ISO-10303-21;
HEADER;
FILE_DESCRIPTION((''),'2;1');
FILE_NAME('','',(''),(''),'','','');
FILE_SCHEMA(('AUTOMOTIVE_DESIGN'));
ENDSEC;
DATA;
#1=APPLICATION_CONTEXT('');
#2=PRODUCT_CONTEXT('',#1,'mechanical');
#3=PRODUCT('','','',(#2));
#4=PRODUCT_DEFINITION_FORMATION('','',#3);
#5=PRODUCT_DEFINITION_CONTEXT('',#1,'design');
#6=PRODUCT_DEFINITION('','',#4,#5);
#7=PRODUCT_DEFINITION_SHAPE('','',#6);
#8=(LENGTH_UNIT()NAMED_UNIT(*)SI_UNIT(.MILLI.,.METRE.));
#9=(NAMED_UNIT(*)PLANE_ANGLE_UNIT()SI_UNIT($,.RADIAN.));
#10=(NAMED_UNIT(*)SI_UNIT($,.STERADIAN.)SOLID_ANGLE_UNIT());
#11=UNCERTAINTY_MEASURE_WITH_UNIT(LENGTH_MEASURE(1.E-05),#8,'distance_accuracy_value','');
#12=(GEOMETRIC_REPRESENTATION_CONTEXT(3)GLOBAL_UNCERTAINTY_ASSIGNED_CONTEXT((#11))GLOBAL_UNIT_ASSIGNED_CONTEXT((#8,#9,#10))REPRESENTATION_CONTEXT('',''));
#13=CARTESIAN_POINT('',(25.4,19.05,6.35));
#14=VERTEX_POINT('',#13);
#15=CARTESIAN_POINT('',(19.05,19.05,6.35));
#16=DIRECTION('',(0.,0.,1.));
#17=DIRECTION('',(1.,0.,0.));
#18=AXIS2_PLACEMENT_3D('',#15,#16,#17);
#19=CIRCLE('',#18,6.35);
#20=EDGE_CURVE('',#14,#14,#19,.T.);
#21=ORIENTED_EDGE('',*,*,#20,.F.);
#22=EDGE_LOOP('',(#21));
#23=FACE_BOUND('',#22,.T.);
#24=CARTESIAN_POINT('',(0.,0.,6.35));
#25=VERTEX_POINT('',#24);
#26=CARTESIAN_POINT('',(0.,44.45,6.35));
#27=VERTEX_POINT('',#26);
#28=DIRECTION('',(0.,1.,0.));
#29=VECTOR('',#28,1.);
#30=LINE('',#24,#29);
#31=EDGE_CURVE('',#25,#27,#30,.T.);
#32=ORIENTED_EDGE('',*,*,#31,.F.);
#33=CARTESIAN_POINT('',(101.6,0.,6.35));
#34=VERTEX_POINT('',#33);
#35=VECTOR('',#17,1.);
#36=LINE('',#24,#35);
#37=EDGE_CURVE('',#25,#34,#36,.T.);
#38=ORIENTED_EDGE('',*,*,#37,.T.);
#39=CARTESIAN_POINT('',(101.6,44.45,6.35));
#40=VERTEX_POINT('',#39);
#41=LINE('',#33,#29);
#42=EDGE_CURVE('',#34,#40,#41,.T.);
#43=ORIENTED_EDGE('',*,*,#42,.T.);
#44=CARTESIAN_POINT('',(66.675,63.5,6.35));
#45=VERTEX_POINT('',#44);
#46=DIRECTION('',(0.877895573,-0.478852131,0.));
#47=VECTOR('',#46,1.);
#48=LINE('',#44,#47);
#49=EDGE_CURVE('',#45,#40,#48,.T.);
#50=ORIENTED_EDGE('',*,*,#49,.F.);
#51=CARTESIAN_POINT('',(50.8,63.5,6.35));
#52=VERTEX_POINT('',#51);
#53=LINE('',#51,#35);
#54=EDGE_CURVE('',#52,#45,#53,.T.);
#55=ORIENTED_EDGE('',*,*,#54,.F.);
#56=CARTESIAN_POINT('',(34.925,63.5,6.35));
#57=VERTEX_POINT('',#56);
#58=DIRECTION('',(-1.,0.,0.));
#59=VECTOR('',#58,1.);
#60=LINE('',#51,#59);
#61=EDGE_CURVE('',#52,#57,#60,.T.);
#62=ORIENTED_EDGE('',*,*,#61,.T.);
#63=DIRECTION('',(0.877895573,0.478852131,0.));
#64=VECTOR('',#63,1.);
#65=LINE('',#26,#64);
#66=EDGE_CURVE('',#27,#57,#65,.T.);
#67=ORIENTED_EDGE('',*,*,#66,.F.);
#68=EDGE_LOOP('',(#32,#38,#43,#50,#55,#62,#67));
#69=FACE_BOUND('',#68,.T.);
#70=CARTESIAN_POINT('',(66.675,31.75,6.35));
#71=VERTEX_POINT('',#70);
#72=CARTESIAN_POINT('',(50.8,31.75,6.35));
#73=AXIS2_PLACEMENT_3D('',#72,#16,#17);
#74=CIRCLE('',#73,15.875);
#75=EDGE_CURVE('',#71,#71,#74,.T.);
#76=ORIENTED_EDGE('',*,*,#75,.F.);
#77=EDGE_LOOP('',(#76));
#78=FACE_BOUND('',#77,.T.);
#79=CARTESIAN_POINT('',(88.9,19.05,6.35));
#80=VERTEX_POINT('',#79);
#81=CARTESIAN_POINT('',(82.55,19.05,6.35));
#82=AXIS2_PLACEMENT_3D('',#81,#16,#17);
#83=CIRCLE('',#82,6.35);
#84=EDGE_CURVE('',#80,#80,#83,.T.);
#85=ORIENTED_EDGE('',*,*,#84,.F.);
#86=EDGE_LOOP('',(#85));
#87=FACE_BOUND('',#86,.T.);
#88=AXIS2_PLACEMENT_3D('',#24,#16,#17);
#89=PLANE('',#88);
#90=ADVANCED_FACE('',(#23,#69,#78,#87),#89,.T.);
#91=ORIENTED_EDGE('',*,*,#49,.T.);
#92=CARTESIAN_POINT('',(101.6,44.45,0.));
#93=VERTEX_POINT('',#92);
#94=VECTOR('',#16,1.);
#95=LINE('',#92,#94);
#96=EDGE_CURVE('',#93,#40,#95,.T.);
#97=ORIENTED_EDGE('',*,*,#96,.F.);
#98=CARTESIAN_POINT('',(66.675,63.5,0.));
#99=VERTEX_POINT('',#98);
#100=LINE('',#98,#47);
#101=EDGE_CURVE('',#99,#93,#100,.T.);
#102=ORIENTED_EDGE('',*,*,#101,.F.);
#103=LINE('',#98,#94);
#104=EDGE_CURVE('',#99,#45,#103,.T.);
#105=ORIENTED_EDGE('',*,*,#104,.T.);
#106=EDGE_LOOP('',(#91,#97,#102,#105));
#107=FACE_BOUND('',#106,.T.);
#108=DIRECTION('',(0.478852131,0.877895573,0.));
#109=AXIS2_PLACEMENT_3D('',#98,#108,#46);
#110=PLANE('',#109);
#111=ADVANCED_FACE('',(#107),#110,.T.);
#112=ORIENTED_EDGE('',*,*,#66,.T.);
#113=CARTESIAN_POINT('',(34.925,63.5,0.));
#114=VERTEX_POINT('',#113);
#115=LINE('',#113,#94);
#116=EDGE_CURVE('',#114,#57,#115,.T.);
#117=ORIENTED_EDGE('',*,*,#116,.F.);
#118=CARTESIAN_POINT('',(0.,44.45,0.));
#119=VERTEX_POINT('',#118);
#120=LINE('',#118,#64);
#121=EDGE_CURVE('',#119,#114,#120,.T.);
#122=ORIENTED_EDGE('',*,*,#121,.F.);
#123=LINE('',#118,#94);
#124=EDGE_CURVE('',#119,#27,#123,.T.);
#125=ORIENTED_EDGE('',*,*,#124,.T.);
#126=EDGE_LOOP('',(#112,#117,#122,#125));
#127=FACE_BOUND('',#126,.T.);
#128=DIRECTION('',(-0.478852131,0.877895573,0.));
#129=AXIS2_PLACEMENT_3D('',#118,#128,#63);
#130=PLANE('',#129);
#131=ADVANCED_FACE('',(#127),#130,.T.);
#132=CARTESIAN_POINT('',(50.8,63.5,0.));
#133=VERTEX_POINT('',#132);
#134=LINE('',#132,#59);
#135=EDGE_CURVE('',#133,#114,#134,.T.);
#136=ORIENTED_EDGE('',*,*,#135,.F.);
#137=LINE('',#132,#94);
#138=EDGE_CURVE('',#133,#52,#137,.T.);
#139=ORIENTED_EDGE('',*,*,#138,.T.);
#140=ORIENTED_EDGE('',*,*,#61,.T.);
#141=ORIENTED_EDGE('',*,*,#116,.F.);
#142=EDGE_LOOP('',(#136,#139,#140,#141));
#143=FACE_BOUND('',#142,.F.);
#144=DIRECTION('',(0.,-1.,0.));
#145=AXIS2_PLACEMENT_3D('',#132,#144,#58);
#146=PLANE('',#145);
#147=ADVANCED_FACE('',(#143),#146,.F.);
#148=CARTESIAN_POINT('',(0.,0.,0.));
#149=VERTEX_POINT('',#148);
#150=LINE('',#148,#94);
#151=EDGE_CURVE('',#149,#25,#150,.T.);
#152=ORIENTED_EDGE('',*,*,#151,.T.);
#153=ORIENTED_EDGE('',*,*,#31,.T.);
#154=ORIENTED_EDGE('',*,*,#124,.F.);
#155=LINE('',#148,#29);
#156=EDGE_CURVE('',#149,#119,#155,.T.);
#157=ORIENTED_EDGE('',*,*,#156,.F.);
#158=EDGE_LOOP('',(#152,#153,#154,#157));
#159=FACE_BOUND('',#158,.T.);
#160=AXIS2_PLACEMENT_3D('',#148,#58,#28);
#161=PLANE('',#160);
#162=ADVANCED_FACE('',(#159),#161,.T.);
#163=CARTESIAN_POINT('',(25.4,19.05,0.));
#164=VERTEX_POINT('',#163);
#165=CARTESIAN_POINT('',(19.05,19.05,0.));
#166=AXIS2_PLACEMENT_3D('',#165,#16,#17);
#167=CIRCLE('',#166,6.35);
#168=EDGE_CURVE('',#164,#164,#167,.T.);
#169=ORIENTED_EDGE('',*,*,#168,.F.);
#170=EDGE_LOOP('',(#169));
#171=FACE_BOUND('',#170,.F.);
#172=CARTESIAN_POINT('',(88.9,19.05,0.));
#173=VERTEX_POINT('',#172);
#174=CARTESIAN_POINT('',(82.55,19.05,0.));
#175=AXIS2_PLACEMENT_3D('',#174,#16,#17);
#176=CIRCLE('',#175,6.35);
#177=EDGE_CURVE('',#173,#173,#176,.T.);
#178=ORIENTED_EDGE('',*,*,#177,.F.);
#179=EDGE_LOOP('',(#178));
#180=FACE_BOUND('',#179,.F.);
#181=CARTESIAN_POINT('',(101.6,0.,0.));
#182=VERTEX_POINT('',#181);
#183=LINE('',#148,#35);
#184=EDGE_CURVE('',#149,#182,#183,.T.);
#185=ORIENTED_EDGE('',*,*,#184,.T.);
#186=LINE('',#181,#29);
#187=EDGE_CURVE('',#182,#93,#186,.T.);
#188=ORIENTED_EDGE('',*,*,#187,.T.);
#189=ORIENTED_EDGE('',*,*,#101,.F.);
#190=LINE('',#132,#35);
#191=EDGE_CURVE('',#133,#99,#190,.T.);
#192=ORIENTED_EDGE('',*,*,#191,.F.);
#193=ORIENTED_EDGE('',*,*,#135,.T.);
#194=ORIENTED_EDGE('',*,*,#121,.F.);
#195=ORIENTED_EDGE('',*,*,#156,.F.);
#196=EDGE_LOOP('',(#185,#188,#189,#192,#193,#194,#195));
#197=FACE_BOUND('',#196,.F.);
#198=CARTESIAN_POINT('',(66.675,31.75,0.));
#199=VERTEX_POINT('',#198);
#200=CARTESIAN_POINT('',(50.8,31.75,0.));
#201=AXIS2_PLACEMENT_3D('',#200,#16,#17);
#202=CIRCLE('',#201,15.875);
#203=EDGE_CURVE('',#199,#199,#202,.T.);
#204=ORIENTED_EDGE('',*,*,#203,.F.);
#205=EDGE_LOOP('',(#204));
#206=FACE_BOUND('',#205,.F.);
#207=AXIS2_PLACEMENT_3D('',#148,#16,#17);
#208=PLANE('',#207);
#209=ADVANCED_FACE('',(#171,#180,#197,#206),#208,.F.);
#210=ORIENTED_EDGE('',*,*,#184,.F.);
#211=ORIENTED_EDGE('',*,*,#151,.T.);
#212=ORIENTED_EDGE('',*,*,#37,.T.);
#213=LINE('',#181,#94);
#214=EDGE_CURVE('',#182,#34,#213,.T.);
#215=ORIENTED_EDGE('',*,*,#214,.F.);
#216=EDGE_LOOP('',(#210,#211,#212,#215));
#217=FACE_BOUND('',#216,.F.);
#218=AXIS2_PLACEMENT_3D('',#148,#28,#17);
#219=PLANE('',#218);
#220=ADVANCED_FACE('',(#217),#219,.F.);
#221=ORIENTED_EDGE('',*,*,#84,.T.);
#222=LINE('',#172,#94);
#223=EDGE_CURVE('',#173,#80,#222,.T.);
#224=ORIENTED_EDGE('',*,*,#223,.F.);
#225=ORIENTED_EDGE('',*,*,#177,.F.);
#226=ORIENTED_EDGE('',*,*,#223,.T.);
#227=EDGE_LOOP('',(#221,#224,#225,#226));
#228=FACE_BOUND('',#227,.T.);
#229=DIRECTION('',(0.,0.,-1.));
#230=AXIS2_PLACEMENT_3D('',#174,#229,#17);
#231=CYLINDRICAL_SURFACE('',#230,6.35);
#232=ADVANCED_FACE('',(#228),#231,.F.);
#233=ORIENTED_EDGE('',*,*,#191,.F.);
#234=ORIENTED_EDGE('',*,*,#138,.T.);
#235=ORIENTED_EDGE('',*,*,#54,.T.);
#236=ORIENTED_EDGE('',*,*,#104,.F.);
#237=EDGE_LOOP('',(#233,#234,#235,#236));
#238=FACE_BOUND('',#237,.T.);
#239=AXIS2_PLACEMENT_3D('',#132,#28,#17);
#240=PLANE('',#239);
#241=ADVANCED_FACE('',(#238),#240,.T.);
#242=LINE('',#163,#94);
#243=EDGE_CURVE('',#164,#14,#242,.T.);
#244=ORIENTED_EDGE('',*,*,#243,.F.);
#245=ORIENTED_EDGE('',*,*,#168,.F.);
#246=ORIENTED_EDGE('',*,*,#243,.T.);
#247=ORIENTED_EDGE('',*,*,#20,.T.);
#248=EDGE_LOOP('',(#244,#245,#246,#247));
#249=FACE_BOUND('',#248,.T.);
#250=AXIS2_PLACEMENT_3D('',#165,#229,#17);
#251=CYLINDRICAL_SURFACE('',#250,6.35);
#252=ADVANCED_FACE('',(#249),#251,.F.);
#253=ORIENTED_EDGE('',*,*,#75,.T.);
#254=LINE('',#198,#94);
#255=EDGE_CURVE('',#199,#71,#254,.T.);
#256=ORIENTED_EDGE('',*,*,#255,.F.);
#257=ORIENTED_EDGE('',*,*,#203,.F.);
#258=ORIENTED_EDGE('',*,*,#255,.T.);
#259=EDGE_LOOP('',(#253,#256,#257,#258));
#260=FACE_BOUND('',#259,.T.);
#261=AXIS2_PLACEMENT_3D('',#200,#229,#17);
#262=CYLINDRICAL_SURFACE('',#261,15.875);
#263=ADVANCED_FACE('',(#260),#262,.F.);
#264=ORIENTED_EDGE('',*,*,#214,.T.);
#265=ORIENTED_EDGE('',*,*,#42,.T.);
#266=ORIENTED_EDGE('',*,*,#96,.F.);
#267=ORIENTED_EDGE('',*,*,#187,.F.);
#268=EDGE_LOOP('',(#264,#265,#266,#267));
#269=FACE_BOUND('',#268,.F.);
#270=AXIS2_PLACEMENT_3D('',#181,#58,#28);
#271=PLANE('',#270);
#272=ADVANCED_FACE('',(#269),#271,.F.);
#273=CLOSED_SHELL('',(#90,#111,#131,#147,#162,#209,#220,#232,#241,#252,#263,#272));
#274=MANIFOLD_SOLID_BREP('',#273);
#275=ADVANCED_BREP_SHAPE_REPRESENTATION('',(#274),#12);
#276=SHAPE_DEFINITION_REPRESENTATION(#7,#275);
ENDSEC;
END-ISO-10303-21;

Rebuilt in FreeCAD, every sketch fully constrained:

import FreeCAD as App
import Part
import Sketcher
Q = App.Units.Quantity


def add_polygon(sketch, points):
    """Adds a closed chain of lines whose ends are joined by coincident constraints."""
    first, n = sketch.GeometryCount, len(points)
    for a, b in zip(points, points[1:] + points[:1]):
        sketch.addGeometry(Part.LineSegment(App.Vector(*a, 0), App.Vector(*b, 0)), False)
    for i in range(n):
        sketch.addConstraint(Sketcher.Constraint("Coincident", first + i, 2, first + (i + 1) % n, 1))

doc = App.newDocument("Part")
body = doc.addObject("PartDesign::Body", "Body")

sketch1 = body.newObject("Sketcher::SketchObject", "Sketch")
sketch1.AttachmentSupport = (doc.getObject("XY_Plane"), [""])
sketch1.MapMode = "FlatFace"
add_polygon(sketch1, [(0, 0), (101.6, 0), (101.6, 44.45), (66.675, 63.5), (34.925, 63.5), (0, 44.45)])
sketch1.addGeometry(Part.Circle(App.Vector(19.05, 19.05, 0), App.Vector(0, 0, 1), 6.35), False)
sketch1.addGeometry(Part.Circle(App.Vector(82.55, 19.05, 0), App.Vector(0, 0, 1), 6.35), False)
sketch1.addGeometry(Part.Circle(App.Vector(50.8, 31.75, 0), App.Vector(0, 0, 1), 15.875), False)
sketch1.addConstraint([
    Sketcher.Constraint("Horizontal", 0),
    Sketcher.Constraint("Vertical", 1),
    Sketcher.Constraint("Horizontal", 3),
    Sketcher.Constraint("Vertical", 5),
    Sketcher.Constraint("Coincident", 5, 2, -1, 1),
    Sketcher.Constraint("Equal", 6, 7),
    Sketcher.Constraint("Horizontal", 6, 3, 7, 3),
    Sketcher.Constraint("Horizontal", 1, 2, 4, 2),
    Sketcher.Constraint("Equal", 2, 4),
    Sketcher.Constraint("Diameter", 6, Q("0.5 in")),
    Sketcher.Constraint("Diameter", 8, Q("1.25 in")),
    Sketcher.Constraint("DistanceX", 0, 1, 0, 2, Q("4 in")),
    Sketcher.Constraint("DistanceX", 3, 2, 3, 1, Q("1.25 in")),
    Sketcher.Constraint("DistanceY", 1, 1, 1, 2, Q("1.75 in")),
    Sketcher.Constraint("DistanceY", 6, 3, 8, 3, Q("0.5 in")),
    Sketcher.Constraint("DistanceY", 8, 3, 1, 2, Q("0.5 in")),
    Sketcher.Constraint("DistanceX", 6, 3, 8, 3, Q("1.25 in")),
    Sketcher.Constraint("DistanceX", 8, 3, 7, 3, Q("1.25 in")),
    Sketcher.Constraint("DistanceY", 8, 3, 2, 2, Q("1.25 in")),
    Sketcher.Constraint("DistanceX", -1, 1, 8, 3, Q("2 in")),
])
pad1 = body.newObject("PartDesign::Pad", "Pad")
pad1.Profile = sketch1
pad1.Length = Q("0.25 in")

doc.recompute()
